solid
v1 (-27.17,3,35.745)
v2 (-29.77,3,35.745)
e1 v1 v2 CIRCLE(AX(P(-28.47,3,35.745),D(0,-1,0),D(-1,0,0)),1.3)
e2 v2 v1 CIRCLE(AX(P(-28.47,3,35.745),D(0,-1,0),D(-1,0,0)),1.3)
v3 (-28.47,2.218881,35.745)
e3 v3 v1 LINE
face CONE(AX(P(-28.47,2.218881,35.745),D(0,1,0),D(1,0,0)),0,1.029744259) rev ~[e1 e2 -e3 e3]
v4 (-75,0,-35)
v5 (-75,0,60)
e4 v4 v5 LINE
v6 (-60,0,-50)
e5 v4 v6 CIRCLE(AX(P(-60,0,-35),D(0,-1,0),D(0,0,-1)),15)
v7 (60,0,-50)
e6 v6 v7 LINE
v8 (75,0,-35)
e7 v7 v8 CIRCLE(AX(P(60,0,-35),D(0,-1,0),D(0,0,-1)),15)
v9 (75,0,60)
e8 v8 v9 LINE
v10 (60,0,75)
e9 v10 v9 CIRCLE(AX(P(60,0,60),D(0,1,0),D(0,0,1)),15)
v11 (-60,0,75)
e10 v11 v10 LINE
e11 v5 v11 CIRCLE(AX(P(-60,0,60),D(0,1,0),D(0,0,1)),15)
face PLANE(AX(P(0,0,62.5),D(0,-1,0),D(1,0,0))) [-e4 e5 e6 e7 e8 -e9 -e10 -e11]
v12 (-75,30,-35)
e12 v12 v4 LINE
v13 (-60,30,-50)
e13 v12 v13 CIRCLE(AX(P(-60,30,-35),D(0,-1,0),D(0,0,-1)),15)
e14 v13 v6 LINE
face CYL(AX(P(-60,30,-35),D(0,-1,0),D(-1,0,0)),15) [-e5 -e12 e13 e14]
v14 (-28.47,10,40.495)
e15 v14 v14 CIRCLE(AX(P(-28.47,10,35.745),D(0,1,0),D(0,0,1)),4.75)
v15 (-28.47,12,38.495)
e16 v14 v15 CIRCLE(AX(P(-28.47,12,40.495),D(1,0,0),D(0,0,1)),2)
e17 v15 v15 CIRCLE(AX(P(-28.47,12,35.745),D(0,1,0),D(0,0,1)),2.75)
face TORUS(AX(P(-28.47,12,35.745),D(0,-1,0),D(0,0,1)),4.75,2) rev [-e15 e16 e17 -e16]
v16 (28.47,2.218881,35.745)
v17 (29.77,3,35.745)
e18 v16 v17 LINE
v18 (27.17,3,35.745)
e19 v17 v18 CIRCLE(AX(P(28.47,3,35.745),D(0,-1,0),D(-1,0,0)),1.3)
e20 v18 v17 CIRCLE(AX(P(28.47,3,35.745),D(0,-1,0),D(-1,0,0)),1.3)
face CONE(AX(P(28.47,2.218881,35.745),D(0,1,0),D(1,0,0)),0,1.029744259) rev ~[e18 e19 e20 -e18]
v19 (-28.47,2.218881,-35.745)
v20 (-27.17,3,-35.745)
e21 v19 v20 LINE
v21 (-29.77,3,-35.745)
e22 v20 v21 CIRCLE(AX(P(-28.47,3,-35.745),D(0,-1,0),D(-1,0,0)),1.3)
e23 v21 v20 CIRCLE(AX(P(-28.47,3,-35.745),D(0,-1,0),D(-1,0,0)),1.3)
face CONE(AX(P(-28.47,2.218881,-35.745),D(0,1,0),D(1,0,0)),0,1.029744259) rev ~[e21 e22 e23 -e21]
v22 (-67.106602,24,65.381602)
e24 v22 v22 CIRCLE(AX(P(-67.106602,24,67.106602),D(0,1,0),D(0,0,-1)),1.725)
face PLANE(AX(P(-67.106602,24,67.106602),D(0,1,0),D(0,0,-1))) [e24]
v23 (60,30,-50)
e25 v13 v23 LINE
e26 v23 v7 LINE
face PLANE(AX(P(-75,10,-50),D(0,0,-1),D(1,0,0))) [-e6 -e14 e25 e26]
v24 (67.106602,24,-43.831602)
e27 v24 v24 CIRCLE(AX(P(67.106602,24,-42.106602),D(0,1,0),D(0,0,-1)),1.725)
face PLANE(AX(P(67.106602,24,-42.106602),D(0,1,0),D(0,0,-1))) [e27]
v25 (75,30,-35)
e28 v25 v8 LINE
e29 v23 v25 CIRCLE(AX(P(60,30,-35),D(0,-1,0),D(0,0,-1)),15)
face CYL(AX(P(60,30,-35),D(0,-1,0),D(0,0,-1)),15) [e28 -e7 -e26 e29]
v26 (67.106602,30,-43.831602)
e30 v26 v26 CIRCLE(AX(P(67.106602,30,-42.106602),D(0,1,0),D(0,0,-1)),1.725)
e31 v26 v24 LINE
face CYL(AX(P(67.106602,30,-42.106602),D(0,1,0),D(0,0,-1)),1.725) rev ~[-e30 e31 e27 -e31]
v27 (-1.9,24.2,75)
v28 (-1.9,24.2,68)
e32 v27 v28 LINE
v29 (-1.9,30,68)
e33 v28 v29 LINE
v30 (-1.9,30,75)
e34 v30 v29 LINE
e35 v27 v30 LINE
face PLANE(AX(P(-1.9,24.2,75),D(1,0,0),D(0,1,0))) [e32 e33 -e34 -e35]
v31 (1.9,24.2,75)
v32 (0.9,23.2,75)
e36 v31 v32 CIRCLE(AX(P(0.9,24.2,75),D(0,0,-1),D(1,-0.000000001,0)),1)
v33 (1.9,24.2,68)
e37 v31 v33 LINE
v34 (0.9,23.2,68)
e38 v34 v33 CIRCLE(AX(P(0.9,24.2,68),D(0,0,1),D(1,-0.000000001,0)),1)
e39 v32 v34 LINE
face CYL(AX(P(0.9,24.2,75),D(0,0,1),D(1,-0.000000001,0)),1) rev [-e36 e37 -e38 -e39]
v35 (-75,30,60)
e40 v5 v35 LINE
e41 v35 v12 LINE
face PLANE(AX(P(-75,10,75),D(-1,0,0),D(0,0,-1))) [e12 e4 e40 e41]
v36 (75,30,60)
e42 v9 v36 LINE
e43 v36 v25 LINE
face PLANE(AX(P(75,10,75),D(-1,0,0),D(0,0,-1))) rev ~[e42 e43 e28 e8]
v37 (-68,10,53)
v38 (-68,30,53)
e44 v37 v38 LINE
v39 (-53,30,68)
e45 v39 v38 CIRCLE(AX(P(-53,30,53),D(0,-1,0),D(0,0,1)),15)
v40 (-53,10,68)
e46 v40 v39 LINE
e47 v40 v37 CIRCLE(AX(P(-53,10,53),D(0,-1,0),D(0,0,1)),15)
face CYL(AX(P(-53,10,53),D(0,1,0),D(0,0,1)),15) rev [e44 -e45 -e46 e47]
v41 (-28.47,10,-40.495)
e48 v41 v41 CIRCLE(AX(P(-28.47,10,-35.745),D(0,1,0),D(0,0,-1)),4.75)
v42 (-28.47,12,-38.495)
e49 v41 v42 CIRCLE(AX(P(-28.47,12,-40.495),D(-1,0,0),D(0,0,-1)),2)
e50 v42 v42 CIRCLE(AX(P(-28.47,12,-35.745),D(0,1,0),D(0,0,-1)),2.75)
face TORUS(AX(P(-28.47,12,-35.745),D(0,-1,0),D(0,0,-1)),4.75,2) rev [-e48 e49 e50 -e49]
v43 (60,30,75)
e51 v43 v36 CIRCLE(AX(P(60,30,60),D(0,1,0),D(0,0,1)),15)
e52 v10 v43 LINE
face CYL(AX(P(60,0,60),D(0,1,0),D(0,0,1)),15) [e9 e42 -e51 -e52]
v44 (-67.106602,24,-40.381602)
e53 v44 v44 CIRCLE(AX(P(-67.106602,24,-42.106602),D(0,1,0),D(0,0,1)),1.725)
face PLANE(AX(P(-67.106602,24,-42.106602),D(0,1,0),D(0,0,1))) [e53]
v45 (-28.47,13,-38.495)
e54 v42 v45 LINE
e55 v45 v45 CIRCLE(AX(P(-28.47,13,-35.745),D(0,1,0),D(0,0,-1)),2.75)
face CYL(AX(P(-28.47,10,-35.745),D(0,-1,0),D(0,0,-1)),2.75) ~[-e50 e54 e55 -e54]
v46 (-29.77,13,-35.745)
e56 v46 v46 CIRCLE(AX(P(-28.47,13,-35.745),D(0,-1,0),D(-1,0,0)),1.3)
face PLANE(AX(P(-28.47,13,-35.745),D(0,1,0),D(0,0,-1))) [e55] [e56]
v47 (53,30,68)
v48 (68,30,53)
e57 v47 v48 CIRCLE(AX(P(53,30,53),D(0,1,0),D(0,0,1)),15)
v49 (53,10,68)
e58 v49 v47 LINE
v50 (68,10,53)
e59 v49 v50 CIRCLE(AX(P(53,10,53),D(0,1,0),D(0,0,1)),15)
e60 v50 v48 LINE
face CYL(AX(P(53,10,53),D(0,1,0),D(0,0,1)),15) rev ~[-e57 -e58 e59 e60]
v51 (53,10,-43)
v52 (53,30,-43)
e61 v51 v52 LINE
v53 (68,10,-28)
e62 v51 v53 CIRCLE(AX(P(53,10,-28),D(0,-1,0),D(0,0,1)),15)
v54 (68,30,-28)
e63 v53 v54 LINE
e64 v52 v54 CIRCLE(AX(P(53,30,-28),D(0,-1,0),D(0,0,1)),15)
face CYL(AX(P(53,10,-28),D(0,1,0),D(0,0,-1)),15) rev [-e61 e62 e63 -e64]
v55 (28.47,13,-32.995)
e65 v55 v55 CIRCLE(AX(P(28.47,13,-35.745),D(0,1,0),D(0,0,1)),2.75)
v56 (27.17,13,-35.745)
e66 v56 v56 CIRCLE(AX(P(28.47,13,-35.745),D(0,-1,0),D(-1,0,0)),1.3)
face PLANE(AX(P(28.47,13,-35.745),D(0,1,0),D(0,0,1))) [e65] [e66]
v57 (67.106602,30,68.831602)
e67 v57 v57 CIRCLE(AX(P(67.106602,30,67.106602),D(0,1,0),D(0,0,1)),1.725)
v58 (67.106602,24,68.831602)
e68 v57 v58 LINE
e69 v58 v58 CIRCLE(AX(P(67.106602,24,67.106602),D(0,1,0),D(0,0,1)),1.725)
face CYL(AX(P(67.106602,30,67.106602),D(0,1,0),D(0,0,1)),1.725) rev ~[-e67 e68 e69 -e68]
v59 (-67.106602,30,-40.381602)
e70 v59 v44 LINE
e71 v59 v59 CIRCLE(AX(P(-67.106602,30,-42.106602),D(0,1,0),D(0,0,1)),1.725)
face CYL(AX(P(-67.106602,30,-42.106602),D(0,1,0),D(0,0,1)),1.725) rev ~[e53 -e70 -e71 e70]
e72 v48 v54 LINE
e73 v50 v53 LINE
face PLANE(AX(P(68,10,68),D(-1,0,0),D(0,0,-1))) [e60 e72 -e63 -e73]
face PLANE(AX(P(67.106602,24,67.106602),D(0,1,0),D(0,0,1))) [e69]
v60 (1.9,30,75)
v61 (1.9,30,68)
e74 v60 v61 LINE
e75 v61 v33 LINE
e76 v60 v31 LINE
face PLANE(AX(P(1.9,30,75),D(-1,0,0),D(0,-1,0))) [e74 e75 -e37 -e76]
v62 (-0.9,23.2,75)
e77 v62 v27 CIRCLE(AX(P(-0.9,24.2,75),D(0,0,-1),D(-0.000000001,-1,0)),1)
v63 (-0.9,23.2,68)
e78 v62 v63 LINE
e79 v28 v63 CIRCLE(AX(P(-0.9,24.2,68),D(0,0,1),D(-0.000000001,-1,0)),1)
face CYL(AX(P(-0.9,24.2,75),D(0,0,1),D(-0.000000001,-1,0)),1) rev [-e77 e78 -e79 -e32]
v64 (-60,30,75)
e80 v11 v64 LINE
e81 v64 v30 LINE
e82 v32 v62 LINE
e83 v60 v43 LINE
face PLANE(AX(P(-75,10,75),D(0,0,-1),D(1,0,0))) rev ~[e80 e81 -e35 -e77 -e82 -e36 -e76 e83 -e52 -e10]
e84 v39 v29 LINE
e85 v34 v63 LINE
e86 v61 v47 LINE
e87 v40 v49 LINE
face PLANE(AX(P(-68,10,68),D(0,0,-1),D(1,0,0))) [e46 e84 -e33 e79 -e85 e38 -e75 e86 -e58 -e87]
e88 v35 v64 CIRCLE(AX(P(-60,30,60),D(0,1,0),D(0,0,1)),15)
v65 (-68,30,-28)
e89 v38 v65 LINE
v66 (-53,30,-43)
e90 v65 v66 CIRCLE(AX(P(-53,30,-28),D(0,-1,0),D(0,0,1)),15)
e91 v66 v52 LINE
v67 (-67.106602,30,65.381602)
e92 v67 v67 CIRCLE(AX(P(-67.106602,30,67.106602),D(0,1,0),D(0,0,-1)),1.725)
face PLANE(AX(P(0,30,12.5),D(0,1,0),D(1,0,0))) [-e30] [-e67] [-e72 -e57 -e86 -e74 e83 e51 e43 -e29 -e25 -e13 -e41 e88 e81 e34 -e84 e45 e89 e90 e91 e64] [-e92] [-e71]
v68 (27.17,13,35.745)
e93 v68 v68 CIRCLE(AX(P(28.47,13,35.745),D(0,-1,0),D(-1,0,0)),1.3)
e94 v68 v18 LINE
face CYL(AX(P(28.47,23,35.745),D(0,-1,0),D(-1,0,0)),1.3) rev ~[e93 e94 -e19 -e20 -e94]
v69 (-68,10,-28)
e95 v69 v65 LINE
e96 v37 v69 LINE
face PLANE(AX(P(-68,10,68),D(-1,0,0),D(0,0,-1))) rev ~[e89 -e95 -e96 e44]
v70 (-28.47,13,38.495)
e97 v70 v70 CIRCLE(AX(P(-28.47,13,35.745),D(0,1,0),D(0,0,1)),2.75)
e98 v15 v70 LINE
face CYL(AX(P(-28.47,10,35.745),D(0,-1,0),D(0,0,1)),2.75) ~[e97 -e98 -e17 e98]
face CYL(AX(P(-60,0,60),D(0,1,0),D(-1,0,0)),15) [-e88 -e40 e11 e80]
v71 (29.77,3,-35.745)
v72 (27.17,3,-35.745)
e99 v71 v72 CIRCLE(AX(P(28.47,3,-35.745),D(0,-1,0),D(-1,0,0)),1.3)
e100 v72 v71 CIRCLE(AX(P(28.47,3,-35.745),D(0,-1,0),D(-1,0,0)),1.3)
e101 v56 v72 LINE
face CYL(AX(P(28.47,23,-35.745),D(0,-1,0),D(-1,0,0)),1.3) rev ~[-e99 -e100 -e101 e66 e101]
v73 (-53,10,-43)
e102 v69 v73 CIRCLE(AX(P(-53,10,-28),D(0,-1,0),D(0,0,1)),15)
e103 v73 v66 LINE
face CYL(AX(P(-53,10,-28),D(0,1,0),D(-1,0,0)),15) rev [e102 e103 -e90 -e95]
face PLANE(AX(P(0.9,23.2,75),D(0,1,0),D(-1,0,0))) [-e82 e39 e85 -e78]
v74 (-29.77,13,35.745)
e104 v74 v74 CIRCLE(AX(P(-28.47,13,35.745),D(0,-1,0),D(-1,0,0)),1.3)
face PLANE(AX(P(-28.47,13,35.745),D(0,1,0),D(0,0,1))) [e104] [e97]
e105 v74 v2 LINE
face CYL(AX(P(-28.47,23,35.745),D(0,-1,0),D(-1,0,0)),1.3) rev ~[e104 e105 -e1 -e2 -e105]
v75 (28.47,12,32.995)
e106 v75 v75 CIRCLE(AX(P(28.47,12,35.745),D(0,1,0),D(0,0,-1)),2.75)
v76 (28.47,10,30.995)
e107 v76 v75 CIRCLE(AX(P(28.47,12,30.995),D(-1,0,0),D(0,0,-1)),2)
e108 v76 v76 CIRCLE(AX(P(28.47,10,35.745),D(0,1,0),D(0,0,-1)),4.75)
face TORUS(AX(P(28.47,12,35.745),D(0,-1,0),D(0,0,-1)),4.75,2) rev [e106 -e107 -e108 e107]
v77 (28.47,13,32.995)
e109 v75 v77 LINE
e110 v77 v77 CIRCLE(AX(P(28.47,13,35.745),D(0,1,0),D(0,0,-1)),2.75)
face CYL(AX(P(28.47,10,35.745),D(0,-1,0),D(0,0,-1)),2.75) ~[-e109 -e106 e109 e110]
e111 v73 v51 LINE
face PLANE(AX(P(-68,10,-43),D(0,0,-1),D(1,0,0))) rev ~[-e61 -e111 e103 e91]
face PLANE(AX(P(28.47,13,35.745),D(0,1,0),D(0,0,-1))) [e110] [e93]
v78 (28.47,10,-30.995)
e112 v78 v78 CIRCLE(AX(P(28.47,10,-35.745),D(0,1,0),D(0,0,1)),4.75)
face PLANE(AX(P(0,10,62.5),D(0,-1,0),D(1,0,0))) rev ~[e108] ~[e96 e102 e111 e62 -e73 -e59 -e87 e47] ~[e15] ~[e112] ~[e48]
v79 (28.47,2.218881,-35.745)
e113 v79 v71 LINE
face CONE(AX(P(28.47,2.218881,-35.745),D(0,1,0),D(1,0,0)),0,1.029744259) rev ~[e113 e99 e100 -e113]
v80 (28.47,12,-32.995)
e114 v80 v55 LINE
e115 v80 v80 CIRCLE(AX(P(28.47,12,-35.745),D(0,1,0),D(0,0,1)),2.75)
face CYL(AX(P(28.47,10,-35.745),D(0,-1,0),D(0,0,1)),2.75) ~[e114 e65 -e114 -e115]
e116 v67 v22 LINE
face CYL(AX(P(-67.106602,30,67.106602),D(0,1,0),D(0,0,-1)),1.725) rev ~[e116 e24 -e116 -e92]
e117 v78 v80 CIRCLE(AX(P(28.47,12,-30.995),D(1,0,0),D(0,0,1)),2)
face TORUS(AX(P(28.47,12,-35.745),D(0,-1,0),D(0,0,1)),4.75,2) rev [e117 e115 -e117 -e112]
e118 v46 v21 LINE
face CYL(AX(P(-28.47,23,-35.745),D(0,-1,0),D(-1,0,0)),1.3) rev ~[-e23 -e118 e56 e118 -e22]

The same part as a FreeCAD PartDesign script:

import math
import FreeCAD as App
import Part
import Sketcher
from FreeCAD import Vector
Q = App.Units.Quantity


def edges_at(feature, points):
    """Names of the edges that pass closest to the given points."""
    edges = feature.Shape.Edges
    near = lambda p: min(range(len(edges)), key=lambda i: edges[i].distToShape(Part.Vertex(*p))[0])
    return sorted({f"Edge{near(p) + 1}" for p in points})


def add_polygon(sketch, points):
    """Adds a closed chain of lines whose ends are joined by coincident constraints."""
    first, n = sketch.GeometryCount, len(points)
    for a, b in zip(points, points[1:] + points[:1]):
        sketch.addGeometry(Part.LineSegment(App.Vector(*a, 0), App.Vector(*b, 0)), False)
    for i in range(n):
        sketch.addConstraint(Sketcher.Constraint("Coincident", first + i, 2, first + (i + 1) % n, 1))

doc = App.newDocument("Part")
body = doc.addObject("PartDesign::Body", "Body")

sketch1 = doc.addObject("Sketcher::SketchObject", "Sketch")
body.addObject(sketch1)
sketch1.AttachmentSupport = (doc.XZ_Plane, [""])
sketch1.MapMode = "FlatFace"
add_polygon(sketch1, [(-75, -50), (-75, 50), (75, 50), (75, -50)])
sketch1.addConstraint([
    Sketcher.Constraint("Vertical", 0),
    Sketcher.Constraint("Horizontal", 1),
    Sketcher.Constraint("Vertical", 2),
    Sketcher.Constraint("Horizontal", 3),
    Sketcher.Constraint("Symmetric", 0, 2, 2, 2, -1, 1),
    Sketcher.Constraint("DistanceX", 1, 1, 1, 2, Q("150 mm")),
    Sketcher.Constraint("DistanceY", 0, 1, 0, 2, Q("100 mm")),
])
pad1 = doc.addObject("PartDesign::Pad", "Pad")
body.addObject(pad1)
pad1.Profile = sketch1
pad1.Length = 10
pad1.Reversed = True

sketch2 = doc.addObject("Sketcher::SketchObject", "Sketch001")
body.addObject(sketch2)
sketch2.AttachmentSupport = (doc.XZ_Plane, [""])
sketch2.MapMode = "FlatFace"
sketch2.AttachmentOffset = App.Placement(Vector(0, 0, -10), App.Rotation())
sketch2.addGeometry([
    Part.Circle(Vector(28.5, -35.7, 0), Vector(0, 0, 1), 2.8),
    Part.Circle(Vector(28.5, 35.7, 0), Vector(0, 0, 1), 2.8),
    Part.Circle(Vector(-28.5, 35.7, 0), Vector(0, 0, 1), 2.8),
    Part.Circle(Vector(-28.5, -35.7, 0), Vector(0, 0, 1), 2.8),
], False)
sketch2.addConstraint([
    Sketcher.Constraint("Equal", 0, 1),
    Sketcher.Constraint("Equal", 1, 2),
    Sketcher.Constraint("Equal", 2, 3),
    Sketcher.Constraint("Symmetric", 0, 3, 2, 3, -1, 1),
    Sketcher.Constraint("Symmetric", 1, 3, 3, 3, -1, 1),
    Sketcher.Constraint("Symmetric", 1, 3, 2, 3, -2),
    Sketcher.Constraint("Diameter", 0, Q("5.5 mm")),
    Sketcher.Constraint("DistanceX", -1, 1, 0, 3, Q("28.47 mm")),
    Sketcher.Constraint("DistanceY", 0, 3, 1, 3, Q("71.49 mm")),
])
pad2 = doc.addObject("PartDesign::Pad", "Pad001")
body.addObject(pad2)
pad2.Profile = sketch2
pad2.Length = 3
pad2.Reversed = True

sketch3 = doc.addObject("Sketcher::SketchObject", "Sketch002")
body.addObject(sketch3)
sketch3.AttachmentSupport = (doc.XZ_Plane, [""])
sketch3.MapMode = "FlatFace"
sketch3.AttachmentOffset = App.Placement(Vector(0, 0, -13), App.Rotation())
sketch3.addGeometry([
    Part.Circle(Vector(-28.5, -35.7, 0), Vector(0, 0, 1), 1.3),
    Part.Circle(Vector(28.5, -35.7, 0), Vector(0, 0, 1), 1.3),
    Part.Circle(Vector(28.5, 35.7, 0), Vector(0, 0, 1), 1.3),
    Part.Circle(Vector(-28.5, 35.7, 0), Vector(0, 0, 1), 1.3),
], False)
sketch3.addConstraint([
    Sketcher.Constraint("Equal", 0, 1),
    Sketcher.Constraint("Equal", 1, 2),
    Sketcher.Constraint("Equal", 2, 3),
    Sketcher.Constraint("Symmetric", 0, 3, 2, 3, -1, 1),
    Sketcher.Constraint("Symmetric", 1, 3, 3, 3, -1, 1),
    Sketcher.Constraint("Symmetric", 0, 3, 1, 3, -2),
    Sketcher.Constraint("Diameter", 0, Q("2.6 mm")),
    Sketcher.Constraint("DistanceX", 0, 3, -1, 1, Q("28.47 mm")),
    Sketcher.Constraint("DistanceY", 1, 3, 2, 3, Q("71.49 mm")),
])
doc.recompute()
hole = doc.addObject("PartDesign::Hole", "Hole")
body.addObject(hole)
hole.Profile = sketch3
hole.ThreadType = "None"
hole.Diameter = 2.6
hole.DepthType = "Dimension"
hole.Depth = 10
hole.DrillPoint = "Angled"
hole.DrillPointAngle = 118
hole.Reversed = True
doc.recompute()

fillet = doc.addObject("PartDesign::Fillet", "Fillet")
body.addObject(fillet)
fillet.Base = (hole, edges_at(hole, [
    (-28.47, 10, 32.995),
    (28.47, 10, -38.495),
    (28.47, 10, 38.495),
    (-28.47, 10, -32.995),
]))
fillet.Radius = 2

sketch4 = doc.addObject("Sketcher::SketchObject", "Sketch003")
body.addObject(sketch4)
sketch4.AttachmentSupport = (doc.XZ_Plane, [""])
sketch4.MapMode = "FlatFace"
add_polygon(sketch4, [(-75, 75), (-75, 50), (75, 50), (75, 75)])
sketch4.addConstraint([
    Sketcher.Constraint("Vertical", 0),
    Sketcher.Constraint("Horizontal", 1),
    Sketcher.Constraint("Vertical", 2),
    Sketcher.Constraint("Horizontal", 3),
    Sketcher.Constraint("DistanceX", 1, 1, 1, 2, Q("150 mm")),
    Sketcher.Constraint("DistanceY", 0, 2, 0, 1, Q("25 mm")),
    Sketcher.Constraint("DistanceX", 0, 2, -1, 1, Q("75 mm")),
    Sketcher.Constraint("DistanceY", -1, 1, 0, 2, Q("50 mm")),
])
pad3 = doc.addObject("PartDesign::Pad", "Pad002")
body.addObject(pad3)
pad3.Profile = sketch4
pad3.Length = 10
pad3.Reversed = True

sketch5 = doc.addObject("Sketcher::SketchObject", "Sketch004")
body.addObject(sketch5)
sketch5.AttachmentSupport = (doc.XZ_Plane, [""])
sketch5.MapMode = "FlatFace"
sketch5.AttachmentOffset = App.Placement(Vector(0, 0, -10), App.Rotation())
add_polygon(sketch5, [(-75, -50), (-75, 75), (75, 75), (75, -50)])
add_polygon(sketch5, [(68, 68), (-68, 68), (-68, -43), (68, -43)])
sketch5.addConstraint([
    Sketcher.Constraint("Vertical", 0),
    Sketcher.Constraint("Horizontal", 1),
    Sketcher.Constraint("Vertical", 2),
    Sketcher.Constraint("Horizontal", 3),
    Sketcher.Constraint("Horizontal", 4),
    Sketcher.Constraint("Vertical", 5),
    Sketcher.Constraint("Horizontal", 6),
    Sketcher.Constraint("Vertical", 7),
    Sketcher.Constraint("DistanceX", 1, 1, 1, 2, Q("150 mm")),
    Sketcher.Constraint("DistanceX", 4, 2, 4, 1, Q("136 mm")),
    Sketcher.Constraint("DistanceY", 0, 1, 0, 2, Q("125 mm")),
    Sketcher.Constraint("DistanceY", 5, 2, 5, 1, Q("111 mm")),
    Sketcher.Constraint("DistanceX", 0, 2, -1, 1, Q("75 mm")),
    Sketcher.Constraint("DistanceY", -1, 1, 0, 2, Q("75 mm")),
    Sketcher.Constraint("DistanceX", 4, 2, -1, 1, Q("68 mm")),
    Sketcher.Constraint("DistanceY", -1, 1, 4, 2, Q("68 mm")),
])
pad4 = doc.addObject("PartDesign::Pad", "Pad003")
body.addObject(pad4)
pad4.Profile = sketch5
pad4.Length = 20
pad4.Reversed = True

sketch6 = doc.addObject("Sketcher::SketchObject", "Sketch005")
body.addObject(sketch6)
sketch6.AttachmentSupport = (doc.XY_Plane, [""])
sketch6.MapMode = "FlatFace"
sketch6.AttachmentOffset = App.Placement(Vector(0, 0, 75), App.Rotation())
sketch6.addGeometry([
    Part.LineSegment(Vector(1.9, 30, 0), Vector(-1.9, 30, 0)),
    Part.LineSegment(Vector(-1.9, 30, 0), Vector(-1.9, 24.2, 0)),
    Part.ArcOfCircle(Part.Circle(Vector(-0.9, 24.2, 0), Vector(0, 0, 1), 1), math.radians(-180), math.radians(-90)),
    Part.LineSegment(Vector(-0.9, 23.2, 0), Vector(0.9, 23.2, 0)),
    Part.ArcOfCircle(Part.Circle(Vector(0.9, 24.2, 0), Vector(0, 0, 1), 1), math.radians(-90), math.radians(0)),
    Part.LineSegment(Vector(1.9, 24.2, 0), Vector(1.9, 30, 0)),
], False)
sketch6.addConstraint([
    Sketcher.Constraint("Coincident", 0, 2, 1, 1),
    Sketcher.Constraint("Tangent", 1, 2, 2, 1),
    Sketcher.Constraint("Tangent", 2, 2, 3, 1),
    Sketcher.Constraint("Tangent", 3, 2, 4, 1),
    Sketcher.Constraint("Tangent", 4, 2, 5, 1),
    Sketcher.Constraint("Coincident", 5, 2, 0, 1),
    Sketcher.Constraint("Horizontal", 0),
    Sketcher.Constraint("Vertical", 1),
    Sketcher.Constraint("Horizontal", 3),
    Sketcher.Constraint("Vertical", 5),
    Sketcher.Constraint("Equal", 2, 4),
    Sketcher.Constraint("Radius", 2, Q("1 mm")),
    Sketcher.Constraint("DistanceX", 0, 2, 0, 1, Q("3.8 mm")),
    Sketcher.Constraint("DistanceY", 1, 2, 1, 1, Q("5.8 mm")),
    Sketcher.Constraint("DistanceY", -1, 1, 0, 2, Q("30 mm")),
    Sketcher.Constraint("DistanceX", 2, 3, -1, 1, Q("0.9 mm")),
])
pocket1 = doc.addObject("PartDesign::Pocket", "Pocket")
body.addObject(pocket1)
pocket1.Profile = sketch6
pocket1.Type = "UpToFirst"
doc.recompute()

fillet2 = doc.addObject("PartDesign::Fillet", "Fillet001")
body.addObject(fillet2)
fillet2.Base = (pocket1, edges_at(pocket1, [
    (-75, 15, 75),
    (75, 15, 75),
    (-75, 15, -50),
    (75, 15, -50),
]))
fillet2.Radius = 15
doc.recompute()

fillet3 = doc.addObject("PartDesign::Fillet", "Fillet002")
body.addObject(fillet3)
fillet3.Base = (fillet2, edges_at(fillet2, [
    (-68, 20, 68),
    (68, 20, 68),
    (68, 20, -43),
    (-68, 20, -43),
]))
fillet3.Radius = 15

sketch7 = doc.addObject("Sketcher::SketchObject", "Sketch006")
body.addObject(sketch7)
sketch7.AttachmentSupport = (doc.XZ_Plane, [""])
sketch7.MapMode = "FlatFace"
sketch7.AttachmentOffset = App.Placement(Vector(0, 0, -30), App.Rotation())
sketch7.addGeometry([
    Part.Circle(Vector(-67.1, -42.1, 0), Vector(0, 0, 1), 1.7),
    Part.Circle(Vector(67.1, -42.1, 0), Vector(0, 0, 1), 1.7),
    Part.Circle(Vector(67.1, 67.1, 0), Vector(0, 0, 1), 1.7),
    Part.Circle(Vector(-67.1, 67.1, 0), Vector(0, 0, 1), 1.7),
], False)
sketch7.addConstraint([
    Sketcher.Constraint("Equal", 0, 1),
    Sketcher.Constraint("Equal", 1, 2),
    Sketcher.Constraint("Equal", 2, 3),
    Sketcher.Constraint("Symmetric", 0, 3, 1, 3, -2),
    Sketcher.Constraint("Symmetric", 2, 3, 3, 3, -2),
    Sketcher.Constraint("Vertical", 1, 3, 2, 3),
    Sketcher.Constraint("Diameter", 0, Q("3.45 mm")),
    Sketcher.Constraint("DistanceX", 0, 3, -1, 1, Q("67.106602 mm")),
    Sketcher.Constraint("DistanceY", 0, 3, -1, 1, Q("42.106602 mm")),
    Sketcher.Constraint("DistanceY", -1, 1, 2, 3, Q("67.106602 mm")),
])
pocket2 = doc.addObject("PartDesign::Pocket", "Pocket001")
body.addObject(pocket2)
pocket2.Profile = sketch7
pocket2.Length = 6
pocket2.Reversed = True

doc.recompute()
